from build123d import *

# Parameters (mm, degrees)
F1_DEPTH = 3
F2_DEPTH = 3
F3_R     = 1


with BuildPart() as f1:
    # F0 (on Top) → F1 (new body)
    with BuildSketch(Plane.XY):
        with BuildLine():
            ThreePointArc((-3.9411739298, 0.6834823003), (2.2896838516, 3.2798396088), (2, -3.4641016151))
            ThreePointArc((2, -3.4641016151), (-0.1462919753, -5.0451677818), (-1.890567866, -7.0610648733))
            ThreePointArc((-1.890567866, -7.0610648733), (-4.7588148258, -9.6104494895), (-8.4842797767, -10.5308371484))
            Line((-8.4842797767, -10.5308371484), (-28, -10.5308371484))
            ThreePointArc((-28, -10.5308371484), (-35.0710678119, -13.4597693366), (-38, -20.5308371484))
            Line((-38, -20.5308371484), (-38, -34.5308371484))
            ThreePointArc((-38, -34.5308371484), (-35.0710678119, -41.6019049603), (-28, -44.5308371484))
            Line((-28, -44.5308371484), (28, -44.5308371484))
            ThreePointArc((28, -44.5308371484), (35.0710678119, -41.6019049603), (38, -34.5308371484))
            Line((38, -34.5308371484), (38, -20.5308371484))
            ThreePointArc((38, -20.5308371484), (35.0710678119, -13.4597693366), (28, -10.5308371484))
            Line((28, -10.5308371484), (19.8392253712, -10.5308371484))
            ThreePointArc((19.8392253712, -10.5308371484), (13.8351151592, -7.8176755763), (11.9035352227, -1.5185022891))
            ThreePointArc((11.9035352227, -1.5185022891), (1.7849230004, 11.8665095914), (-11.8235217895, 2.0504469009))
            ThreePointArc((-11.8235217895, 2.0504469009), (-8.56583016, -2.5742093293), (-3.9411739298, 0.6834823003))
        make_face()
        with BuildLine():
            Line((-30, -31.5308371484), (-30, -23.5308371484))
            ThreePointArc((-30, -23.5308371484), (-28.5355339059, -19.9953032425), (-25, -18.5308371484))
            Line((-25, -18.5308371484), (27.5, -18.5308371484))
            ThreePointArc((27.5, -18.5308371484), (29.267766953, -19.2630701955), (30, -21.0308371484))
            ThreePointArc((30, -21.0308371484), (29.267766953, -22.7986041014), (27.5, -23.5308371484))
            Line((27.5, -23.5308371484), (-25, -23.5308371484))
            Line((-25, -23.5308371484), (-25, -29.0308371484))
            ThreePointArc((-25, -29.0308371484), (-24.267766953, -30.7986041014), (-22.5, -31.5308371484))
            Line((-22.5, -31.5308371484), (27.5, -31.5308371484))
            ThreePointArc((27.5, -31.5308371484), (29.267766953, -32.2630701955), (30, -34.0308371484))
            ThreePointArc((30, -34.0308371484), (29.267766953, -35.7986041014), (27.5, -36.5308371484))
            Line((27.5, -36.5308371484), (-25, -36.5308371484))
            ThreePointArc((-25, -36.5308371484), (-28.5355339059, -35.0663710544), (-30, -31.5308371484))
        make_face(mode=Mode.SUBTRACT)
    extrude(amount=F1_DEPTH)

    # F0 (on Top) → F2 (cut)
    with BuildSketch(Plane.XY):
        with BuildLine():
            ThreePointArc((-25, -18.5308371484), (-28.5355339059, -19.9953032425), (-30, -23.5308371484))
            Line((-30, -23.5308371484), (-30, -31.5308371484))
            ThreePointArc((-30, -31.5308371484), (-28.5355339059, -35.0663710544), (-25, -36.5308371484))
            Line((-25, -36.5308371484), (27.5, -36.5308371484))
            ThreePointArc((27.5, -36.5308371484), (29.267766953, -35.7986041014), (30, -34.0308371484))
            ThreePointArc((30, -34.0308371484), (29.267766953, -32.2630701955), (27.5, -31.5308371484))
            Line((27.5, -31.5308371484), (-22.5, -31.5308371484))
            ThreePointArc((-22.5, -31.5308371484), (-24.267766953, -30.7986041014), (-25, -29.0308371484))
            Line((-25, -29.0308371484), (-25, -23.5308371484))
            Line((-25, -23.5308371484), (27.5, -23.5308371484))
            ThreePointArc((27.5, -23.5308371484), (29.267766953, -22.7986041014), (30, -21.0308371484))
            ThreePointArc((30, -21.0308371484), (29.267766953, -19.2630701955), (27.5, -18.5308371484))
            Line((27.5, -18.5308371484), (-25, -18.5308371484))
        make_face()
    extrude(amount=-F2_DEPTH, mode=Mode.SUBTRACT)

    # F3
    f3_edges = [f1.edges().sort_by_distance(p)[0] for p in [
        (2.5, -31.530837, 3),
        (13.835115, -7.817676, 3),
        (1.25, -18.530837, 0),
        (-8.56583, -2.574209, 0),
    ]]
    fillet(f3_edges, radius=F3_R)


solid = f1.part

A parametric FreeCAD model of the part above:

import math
import FreeCAD as App
import Part
import Sketcher
Q = App.Units.Quantity


def edges_at(feature, points):
    """Names of the edges that pass closest to the given points."""
    edges = feature.Shape.Edges
    near = lambda p: min(range(len(edges)), key=lambda i: edges[i].distToShape(Part.Vertex(*p))[0])
    return sorted({f"Edge{near(p) + 1}" for p in points})

doc = App.newDocument("Part")
body = doc.addObject("PartDesign::Body", "Body")

# Sketch on XY plane
sketch1 = doc.addObject("Sketcher::SketchObject", "Sketch")
body.addObject(sketch1)
sketch1.AttachmentSupport = (doc.XY_Plane, [""])
sketch1.MapMode = "FlatFace"
sketch1.addGeometry([
    Part.ArcOfCircle(Part.Circle(App.Vector(0, 0, 0), App.Vector(0, 0, 1), 4), math.radians(-60), math.radians(170)),  # 0
    Part.ArcOfCircle(Part.Circle(App.Vector(8, -13.9, 0), App.Vector(0, 0, 1), 12), math.radians(120), math.radians(146)),  # 1
    Part.ArcOfCircle(Part.Circle(App.Vector(-8.5, -2.5, 0), App.Vector(0, 0, 1), 8), math.radians(-90), math.radians(-34)),  # 2
    Part.LineSegment(App.Vector(-8.5, -10.5, 0), App.Vector(-28, -10.5, 0)),  # 3
    Part.ArcOfCircle(Part.Circle(App.Vector(-28, -20.5, 0), App.Vector(0, 0, 1), 10), math.radians(90), math.radians(180)),  # 4
    Part.LineSegment(App.Vector(-38, -20.5, 0), App.Vector(-38, -34.5, 0)),  # 5
    Part.ArcOfCircle(Part.Circle(App.Vector(-28, -34.5, 0), App.Vector(0, 0, 1), 10), math.radians(180), math.radians(270)),  # 6
    Part.LineSegment(App.Vector(-28, -44.5, 0), App.Vector(28, -44.5, 0)),  # 7
    Part.ArcOfCircle(Part.Circle(App.Vector(28, -34.5, 0), App.Vector(0, 0, 1), 10), math.radians(-90), math.radians(0)),  # 8
    Part.LineSegment(App.Vector(38, -34.5, 0), App.Vector(38, -20.5, 0)),  # 9
    Part.ArcOfCircle(Part.Circle(App.Vector(28, -20.5, 0), App.Vector(0, 0, 1), 10), math.radians(0), math.radians(90)),  # 10
    Part.LineSegment(App.Vector(28, -10.5, 0), App.Vector(19.8, -10.5, 0)),  # 11
    Part.ArcOfCircle(Part.Circle(App.Vector(19.8, -2.5, 0), App.Vector(0, 0, 1), 8), math.radians(173), math.radians(270)),  # 12
    Part.ArcOfCircle(Part.Circle(App.Vector(0, 0, 0), App.Vector(0, 0, 1), 12), math.radians(-7), math.radians(170)),  # 13
    Part.ArcOfCircle(Part.Circle(App.Vector(-7.9, 1.4, 0), App.Vector(0, 0, 1), 4), math.radians(170), math.radians(350)),  # 14
    Part.ArcOfCircle(Part.Circle(App.Vector(-25, -31.5, 0), App.Vector(0, 0, 1), 5), math.radians(180), math.radians(270)),  # 15
    Part.LineSegment(App.Vector(-30, -31.5, 0), App.Vector(-30, -23.5, 0)),  # 16
    Part.ArcOfCircle(Part.Circle(App.Vector(-25, -23.5, 0), App.Vector(0, 0, 1), 5), math.radians(90), math.radians(180)),  # 17
    Part.LineSegment(App.Vector(-25, -18.5, 0), App.Vector(27.5, -18.5, 0)),  # 18
    Part.ArcOfCircle(Part.Circle(App.Vector(27.5, -21, 0), App.Vector(0, 0, 1), 2.5), math.radians(0), math.radians(90)),  # 19
    Part.ArcOfCircle(Part.Circle(App.Vector(27.5, -21, 0), App.Vector(0, 0, 1), 2.5), math.radians(-90), math.radians(0)),  # 20
    Part.LineSegment(App.Vector(27.5, -23.5, 0), App.Vector(-25, -23.5, 0)),  # 21
    Part.LineSegment(App.Vector(-25, -23.5, 0), App.Vector(-25, -29, 0)),  # 22
    Part.ArcOfCircle(Part.Circle(App.Vector(-22.5, -29, 0), App.Vector(0, 0, 1), 2.5), math.radians(180), math.radians(270)),  # 23
    Part.LineSegment(App.Vector(-22.5, -31.5, 0), App.Vector(27.5, -31.5, 0)),  # 24
    Part.ArcOfCircle(Part.Circle(App.Vector(27.5, -34, 0), App.Vector(0, 0, 1), 2.5), math.radians(0), math.radians(90)),  # 25
    Part.ArcOfCircle(Part.Circle(App.Vector(27.5, -34, 0), App.Vector(0, 0, 1), 2.5), math.radians(-90), math.radians(0)),  # 26
    Part.LineSegment(App.Vector(27.5, -36.5, 0), App.Vector(-25, -36.5, 0)),  # 27
], False)
sketch1.addConstraint([
    Sketcher.Constraint("Tangent", 0, 1, 1, 1),
    Sketcher.Constraint("Tangent", 1, 2, 2, 2),
    Sketcher.Constraint("Tangent", 2, 1, 3, 1),
    Sketcher.Constraint("Tangent", 3, 2, 4, 1),
    Sketcher.Constraint("Tangent", 4, 2, 5, 1),
    Sketcher.Constraint("Tangent", 5, 2, 6, 1),
    Sketcher.Constraint("Tangent", 6, 2, 7, 1),
    Sketcher.Constraint("Tangent", 7, 2, 8, 1),
    Sketcher.Constraint("Tangent", 8, 2, 9, 1),
    Sketcher.Constraint("Tangent", 9, 2, 10, 1),
    Sketcher.Constraint("Tangent", 10, 2, 11, 1),
    Sketcher.Constraint("Tangent", 11, 2, 12, 2),
    Sketcher.Constraint("Tangent", 12, 1, 13, 1),
    Sketcher.Constraint("Tangent", 13, 2, 14, 1),
    Sketcher.Constraint("Tangent", 14, 2, 0, 2),
    Sketcher.Constraint("Tangent", 15, 1, 16, 1),
    Sketcher.Constraint("Tangent", 16, 2, 17, 2),
    Sketcher.Constraint("Tangent", 17, 1, 18, 1),
    Sketcher.Constraint("Tangent", 18, 2, 19, 2),
    Sketcher.Constraint("Tangent", 19, 1, 20, 2),
    Sketcher.Constraint("Tangent", 20, 1, 21, 1),
    Sketcher.Constraint("Coincident", 21, 2, 22, 1),
    Sketcher.Constraint("Tangent", 22, 2, 23, 1),
    Sketcher.Constraint("Tangent", 23, 2, 24, 1),
    Sketcher.Constraint("Tangent", 24, 2, 25, 2),
    Sketcher.Constraint("Tangent", 25, 1, 26, 2),
    Sketcher.Constraint("Tangent", 26, 1, 27, 1),
    Sketcher.Constraint("Tangent", 27, 2, 15, 2),
    Sketcher.Constraint("Horizontal", 3),
    Sketcher.Constraint("Vertical", 5),
    Sketcher.Constraint("Horizontal", 7),
    Sketcher.Constraint("Vertical", 9),
    Sketcher.Constraint("Horizontal", 11),
    Sketcher.Constraint("Vertical", 16),
    Sketcher.Constraint("Horizontal", 18),
    Sketcher.Constraint("Horizontal", 21),
    Sketcher.Constraint("Vertical", 22),
    Sketcher.Constraint("Horizontal", 24),
    Sketcher.Constraint("Horizontal", 27),
    Sketcher.Constraint("Coincident", 0, 3, -1, 1),
    Sketcher.Constraint("Coincident", 13, 3, -1, 1),
    Sketcher.Constraint("Coincident", 21, 2, 17, 3),
    Sketcher.Constraint("Equal", 4, 6),
    Sketcher.Constraint("Equal", 6, 8),
    Sketcher.Constraint("Equal", 8, 10),
    Sketcher.Constraint("Equal", 2, 12),
    Sketcher.Constraint("Equal", 1, 13),
    Sketcher.Constraint("Equal", 0, 14),
    Sketcher.Constraint("Equal", 15, 17),
    Sketcher.Constraint("Equal", 19, 20),
    Sketcher.Constraint("Equal", 20, 23),
    Sketcher.Constraint("Equal", 23, 25),
    Sketcher.Constraint("Equal", 25, 26),
    Sketcher.Constraint("Symmetric", 4, 3, 10, 3, -2),
    Sketcher.Constraint("Horizontal", 20, 3, 19, 1),
    Sketcher.Constraint("Horizontal", 26, 3, 25, 1),
    Sketcher.Constraint("Vertical", 20, 3, 25, 3),
    Sketcher.Constraint("Radius", 0, Q("4 mm")),
    Sketcher.Constraint("Radius", 2, Q("8 mm")),
    Sketcher.Constraint("Radius", 4, Q("10 mm")),
    Sketcher.Constraint("Radius", 15, Q("5 mm")),
    Sketcher.Constraint("DistanceX", 7, 1, 7, 2, Q("56 mm")),
    Sketcher.Constraint("DistanceX", 24, 1, 24, 2, Q("50 mm")),
    Sketcher.Constraint("DistanceY", 5, 2, 5, 1, Q("14 mm")),
    Sketcher.Constraint("DistanceY", 16, 1, 16, 2, Q("8 mm")),
    Sketcher.Constraint("DistanceX", -1, 1, 1, 3, Q("8 mm")),
    Sketcher.Constraint("DistanceX", 15, 3, -1, 1, Q("25 mm")),
    Sketcher.Constraint("DistanceY", 6, 3, 15, 3, Q("3 mm")),
    Sketcher.Constraint("DistanceX", 3, 2, 3, 1, Q("19.51572 mm")),
    Sketcher.Constraint("DistanceY", 2, 3, 14, 3, Q("3.897802 mm")),
])
pad1 = doc.addObject("PartDesign::Pad", "Pad")
body.addObject(pad1)
pad1.Profile = sketch1
pad1.Length = 3

# Sketch on XY plane
sketch2 = doc.addObject("Sketcher::SketchObject", "Sketch001")
body.addObject(sketch2)
sketch2.AttachmentSupport = (doc.XY_Plane, [""])
sketch2.MapMode = "FlatFace"
sketch2.addGeometry([
    Part.ArcOfCircle(Part.Circle(App.Vector(-25, -23.5, 0), App.Vector(0, 0, 1), 5), math.radians(90), math.radians(180)),  # 0
    Part.LineSegment(App.Vector(-30, -23.5, 0), App.Vector(-30, -31.5, 0)),  # 1
    Part.ArcOfCircle(Part.Circle(App.Vector(-25, -31.5, 0), App.Vector(0, 0, 1), 5), math.radians(180), math.radians(270)),  # 2
    Part.LineSegment(App.Vector(-25, -36.5, 0), App.Vector(27.5, -36.5, 0)),  # 3
    Part.ArcOfCircle(Part.Circle(App.Vector(27.5, -34, 0), App.Vector(0, 0, 1), 2.5), math.radians(-90), math.radians(0)),  # 4
    Part.ArcOfCircle(Part.Circle(App.Vector(27.5, -34, 0), App.Vector(0, 0, 1), 2.5), math.radians(0), math.radians(90)),  # 5
    Part.LineSegment(App.Vector(27.5, -31.5, 0), App.Vector(-22.5, -31.5, 0)),  # 6
    Part.ArcOfCircle(Part.Circle(App.Vector(-22.5, -29, 0), App.Vector(0, 0, 1), 2.5), math.radians(180), math.radians(270)),  # 7
    Part.LineSegment(App.Vector(-25, -29, 0), App.Vector(-25, -23.5, 0)),  # 8
    Part.LineSegment(App.Vector(-25, -23.5, 0), App.Vector(27.5, -23.5, 0)),  # 9
    Part.ArcOfCircle(Part.Circle(App.Vector(27.5, -21, 0), App.Vector(0, 0, 1), 2.5), math.radians(-90), math.radians(0)),  # 10
    Part.ArcOfCircle(Part.Circle(App.Vector(27.5, -21, 0), App.Vector(0, 0, 1), 2.5), math.radians(0), math.radians(90)),  # 11
    Part.LineSegment(App.Vector(27.5, -18.5, 0), App.Vector(-25, -18.5, 0)),  # 12
], False)
sketch2.addConstraint([
    Sketcher.Constraint("Tangent", 0, 2, 1, 1),
    Sketcher.Constraint("Tangent", 1, 2, 2, 1),
    Sketcher.Constraint("Tangent", 2, 2, 3, 1),
    Sketcher.Constraint("Tangent", 3, 2, 4, 1),
    Sketcher.Constraint("Tangent", 4, 2, 5, 1),
    Sketcher.Constraint("Tangent", 5, 2, 6, 1),
    Sketcher.Constraint("Tangent", 6, 2, 7, 2),
    Sketcher.Constraint("Tangent", 7, 1, 8, 1),
    Sketcher.Constraint("Coincident", 8, 2, 9, 1),
    Sketcher.Constraint("Tangent", 9, 2, 10, 1),
    Sketcher.Constraint("Tangent", 10, 2, 11, 1),
    Sketcher.Constraint("Tangent", 11, 2, 12, 1),
    Sketcher.Constraint("Tangent", 12, 2, 0, 1),
    Sketcher.Constraint("Vertical", 1),
    Sketcher.Constraint("Horizontal", 3),
    Sketcher.Constraint("Horizontal", 6),
    Sketcher.Constraint("Vertical", 8),
    Sketcher.Constraint("Horizontal", 9),
    Sketcher.Constraint("Horizontal", 12),
    Sketcher.Constraint("Coincident", 8, 2, 0, 3),
    Sketcher.Constraint("Equal", 0, 2),
    Sketcher.Constraint("Equal", 4, 5),
    Sketcher.Constraint("Equal", 5, 7),
    Sketcher.Constraint("Equal", 7, 10),
    Sketcher.Constraint("Equal", 10, 11),
    Sketcher.Constraint("Horizontal", 5, 3, 4, 2),
    Sketcher.Constraint("Horizontal", 11, 3, 10, 2),
    Sketcher.Constraint("Vertical", 5, 3, 10, 3),
    Sketcher.Constraint("Radius", 0, Q("5 mm")),
    Sketcher.Constraint("DistanceX", 6, 2, 6, 1, Q("50 mm")),
    Sketcher.Constraint("DistanceY", 1, 2, 1, 1, Q("8 mm")),
    Sketcher.Constraint("DistanceX", 0, 3, -1, 1, Q("25 mm")),
    Sketcher.Constraint("DistanceY", 0, 3, -1, 1, Q("23.530837 mm")),
])
pocket1 = doc.addObject("PartDesign::Pocket", "Pocket")
body.addObject(pocket1)
pocket1.Profile = sketch2
pocket1.Length = 3
doc.recompute()

fillet = doc.addObject("PartDesign::Fillet", "Fillet")
body.addObject(fillet)
fillet.Base = (pocket1, edges_at(pocket1, [
    (2.5, -31.531, 3),
    (13.835, -7.818, 3),
    (1.25, -18.531, 0),
    (-8.566, -2.574, 0),
]))
fillet.Radius = 1

doc.recompute()
